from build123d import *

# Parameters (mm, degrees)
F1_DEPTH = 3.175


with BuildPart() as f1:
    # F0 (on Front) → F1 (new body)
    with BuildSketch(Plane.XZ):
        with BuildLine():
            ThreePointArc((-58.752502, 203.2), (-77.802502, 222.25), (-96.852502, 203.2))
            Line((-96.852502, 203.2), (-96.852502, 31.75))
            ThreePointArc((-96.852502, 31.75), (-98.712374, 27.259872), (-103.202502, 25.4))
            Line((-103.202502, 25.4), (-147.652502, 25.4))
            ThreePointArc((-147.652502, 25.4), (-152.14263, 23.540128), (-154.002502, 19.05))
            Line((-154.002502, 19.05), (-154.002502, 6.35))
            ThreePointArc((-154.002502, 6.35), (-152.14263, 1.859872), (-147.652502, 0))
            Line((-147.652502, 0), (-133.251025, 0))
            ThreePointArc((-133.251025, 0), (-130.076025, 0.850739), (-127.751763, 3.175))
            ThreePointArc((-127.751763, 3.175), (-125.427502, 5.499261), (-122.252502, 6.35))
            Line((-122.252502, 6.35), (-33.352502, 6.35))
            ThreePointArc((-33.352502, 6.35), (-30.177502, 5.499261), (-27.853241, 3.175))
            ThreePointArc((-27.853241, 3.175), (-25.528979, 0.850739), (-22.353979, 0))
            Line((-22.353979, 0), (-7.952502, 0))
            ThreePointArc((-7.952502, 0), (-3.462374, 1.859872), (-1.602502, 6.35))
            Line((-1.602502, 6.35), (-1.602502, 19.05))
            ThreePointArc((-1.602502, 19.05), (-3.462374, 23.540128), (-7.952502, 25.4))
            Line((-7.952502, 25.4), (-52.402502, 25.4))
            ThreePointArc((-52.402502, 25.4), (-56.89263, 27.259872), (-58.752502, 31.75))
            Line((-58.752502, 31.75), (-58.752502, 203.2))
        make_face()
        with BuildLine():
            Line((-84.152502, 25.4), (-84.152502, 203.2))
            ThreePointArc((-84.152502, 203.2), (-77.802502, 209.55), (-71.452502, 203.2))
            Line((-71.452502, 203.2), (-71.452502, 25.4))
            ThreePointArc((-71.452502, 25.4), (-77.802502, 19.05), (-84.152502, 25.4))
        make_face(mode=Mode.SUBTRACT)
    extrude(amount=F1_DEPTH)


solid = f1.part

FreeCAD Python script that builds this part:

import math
import FreeCAD as App
import Part
import Sketcher

V = App.Vector
Q = App.Units.Quantity

doc = App.newDocument("Part")
body = doc.addObject("PartDesign::Body", "Body")

sketch1 = body.newObject("Sketcher::SketchObject", "Sketch")
sketch1.AttachmentSupport = (doc.getObject("XZ_Plane"), [""])
sketch1.MapMode = "FlatFace"
sketch1.addGeometry([
    Part.ArcOfCircle(Part.Circle(V(-78, 203, 0), V(0, 0, 1), 19), math.radians(0), math.radians(180)),
    Part.LineSegment(V(-97, 203, 0), V(-97, 32, 0)),
    Part.ArcOfCircle(Part.Circle(V(-103, 32, 0), V(0, 0, 1), 6), math.radians(-90), math.radians(0)),
    Part.LineSegment(V(-103, 25, 0), V(-148, 25, 0)),
    Part.ArcOfCircle(Part.Circle(V(-148, 19, 0), V(0, 0, 1), 6), math.radians(90), math.radians(180)),
    Part.LineSegment(V(-154, 19, 0), V(-154, 6, 0)),
    Part.ArcOfCircle(Part.Circle(V(-148, 6, 0), V(0, 0, 1), 6), math.radians(-180), math.radians(-90)),
    Part.LineSegment(V(-148, 0, 0), V(-133, 0, 0)),
    Part.ArcOfCircle(Part.Circle(V(-133, 6, 0), V(0, 0, 1), 6), math.radians(-90), math.radians(-30)),
    Part.ArcOfCircle(Part.Circle(V(-122, 0, 0), V(0, 0, 1), 6), math.radians(90), math.radians(150)),
    Part.LineSegment(V(-122, 6, 0), V(-33, 6, 0)),
    Part.ArcOfCircle(Part.Circle(V(-33, 0, 0), V(0, 0, 1), 6), math.radians(30), math.radians(90)),
    Part.ArcOfCircle(Part.Circle(V(-22, 6, 0), V(0, 0, 1), 6), math.radians(-150), math.radians(-90)),
    Part.LineSegment(V(-22, 0, 0), V(-8, 0, 0)),
    Part.ArcOfCircle(Part.Circle(V(-8, 6, 0), V(0, 0, 1), 6), math.radians(-90), math.radians(0)),
    Part.LineSegment(V(-2, 6, 0), V(-2, 19, 0)),
    Part.ArcOfCircle(Part.Circle(V(-8, 19, 0), V(0, 0, 1), 6), math.radians(0), math.radians(90)),
    Part.LineSegment(V(-8, 25, 0), V(-52, 25, 0)),
    Part.ArcOfCircle(Part.Circle(V(-52, 32, 0), V(0, 0, 1), 6), math.radians(-180), math.radians(-90)),
    Part.LineSegment(V(-59, 32, 0), V(-59, 203, 0)),
    Part.ArcOfCircle(Part.Circle(V(-78, 25, 0), V(0, 0, 1), 6), math.radians(180), math.radians(360)),
    Part.LineSegment(V(-84, 25, 0), V(-84, 203, 0)),
    Part.ArcOfCircle(Part.Circle(V(-78, 203, 0), V(0, 0, 1), 6), math.radians(0), math.radians(180)),
    Part.LineSegment(V(-71, 203, 0), V(-71, 25, 0)),
], False)
sketch1.addConstraint([
    Sketcher.Constraint("Tangent", 0, 2, 1, 1),
    Sketcher.Constraint("Tangent", 1, 2, 2, 2),
    Sketcher.Constraint("Tangent", 2, 1, 3, 1),
    Sketcher.Constraint("Tangent", 3, 2, 4, 1),
    Sketcher.Constraint("Tangent", 4, 2, 5, 1),
    Sketcher.Constraint("Tangent", 5, 2, 6, 1),
    Sketcher.Constraint("Tangent", 6, 2, 7, 1),
    Sketcher.Constraint("Tangent", 7, 2, 8, 1),
    Sketcher.Constraint("Tangent", 8, 2, 9, 2),
    Sketcher.Constraint("Tangent", 9, 1, 10, 1),
    Sketcher.Constraint("Tangent", 10, 2, 11, 2),
    Sketcher.Constraint("Tangent", 11, 1, 12, 1),
    Sketcher.Constraint("Tangent", 12, 2, 13, 1),
    Sketcher.Constraint("Tangent", 13, 2, 14, 1),
    Sketcher.Constraint("Tangent", 14, 2, 15, 1),
    Sketcher.Constraint("Tangent", 15, 2, 16, 1),
    Sketcher.Constraint("Tangent", 16, 2, 17, 1),
    Sketcher.Constraint("Tangent", 17, 2, 18, 2),
    Sketcher.Constraint("Tangent", 18, 1, 19, 1),
    Sketcher.Constraint("Tangent", 19, 2, 0, 1),
    Sketcher.Constraint("Tangent", 20, 1, 21, 1),
    Sketcher.Constraint("Tangent", 21, 2, 22, 2),
    Sketcher.Constraint("Tangent", 22, 1, 23, 1),
    Sketcher.Constraint("Tangent", 23, 2, 20, 2),
    Sketcher.Constraint("Vertical", 1),
    Sketcher.Constraint("Horizontal", 3),
    Sketcher.Constraint("Vertical", 5),
    Sketcher.Constraint("Horizontal", 7),
    Sketcher.Constraint("Horizontal", 10),
    Sketcher.Constraint("Horizontal", 13),
    Sketcher.Constraint("Vertical", 15),
    Sketcher.Constraint("Horizontal", 17),
    Sketcher.Constraint("Vertical", 19),
    Sketcher.Constraint("Vertical", 21),
    Sketcher.Constraint("Vertical", 23),
    Sketcher.Constraint("Coincident", 22, 3, 0, 3),
    Sketcher.Constraint("Equal", 2, 4),
    Sketcher.Constraint("Equal", 4, 6),
    Sketcher.Constraint("Equal", 6, 9),
    Sketcher.Constraint("Equal", 9, 11),
    Sketcher.Constraint("Equal", 8, 12),
    Sketcher.Constraint("Equal", 11, 14),
    Sketcher.Constraint("Equal", 14, 16),
    Sketcher.Constraint("Equal", 16, 18),
    Sketcher.Constraint("Equal", 18, 20),
    Sketcher.Constraint("PointOnObject", 9, 3, -1),
    Sketcher.Constraint("PointOnObject", 6, 2, -1),
    Sketcher.Constraint("PointOnObject", 12, 2, -1),
    Sketcher.Constraint("Horizontal", 4, 3, 16, 3),
    Sketcher.Constraint("Horizontal", 20, 3, 2, 1),
    Sketcher.Constraint("Equal", 7, 13),
    Sketcher.Constraint("Equal", 3, 17),
    Sketcher.Constraint("DistanceY", 21, 1, 21, 2, Q("7 in")),
    Sketcher.Constraint("Radius", 0, Q("0.75 in")),
    Sketcher.Constraint("Radius", 2, Q("0.25 in")),
    Sketcher.Constraint("Radius", 8, Q("0.2500002 in")),
    Sketcher.Constraint("DistanceX", 10, 1, 10, 2, Q("3.5 in")),
    Sketcher.Constraint("DistanceY", 5, 2, 5, 1, Q("0.5 in")),
    Sketcher.Constraint("DistanceX", 6, 3, 9, 3, Q("1 in")),
    Sketcher.Constraint("DistanceX", 4, 3, -1, 1, 147.652502),
])
pad1 = body.newObject("PartDesign::Pad", "Pad")
pad1.Profile = sketch1
pad1.Length = Q("0.125 in")

doc.recompute()
